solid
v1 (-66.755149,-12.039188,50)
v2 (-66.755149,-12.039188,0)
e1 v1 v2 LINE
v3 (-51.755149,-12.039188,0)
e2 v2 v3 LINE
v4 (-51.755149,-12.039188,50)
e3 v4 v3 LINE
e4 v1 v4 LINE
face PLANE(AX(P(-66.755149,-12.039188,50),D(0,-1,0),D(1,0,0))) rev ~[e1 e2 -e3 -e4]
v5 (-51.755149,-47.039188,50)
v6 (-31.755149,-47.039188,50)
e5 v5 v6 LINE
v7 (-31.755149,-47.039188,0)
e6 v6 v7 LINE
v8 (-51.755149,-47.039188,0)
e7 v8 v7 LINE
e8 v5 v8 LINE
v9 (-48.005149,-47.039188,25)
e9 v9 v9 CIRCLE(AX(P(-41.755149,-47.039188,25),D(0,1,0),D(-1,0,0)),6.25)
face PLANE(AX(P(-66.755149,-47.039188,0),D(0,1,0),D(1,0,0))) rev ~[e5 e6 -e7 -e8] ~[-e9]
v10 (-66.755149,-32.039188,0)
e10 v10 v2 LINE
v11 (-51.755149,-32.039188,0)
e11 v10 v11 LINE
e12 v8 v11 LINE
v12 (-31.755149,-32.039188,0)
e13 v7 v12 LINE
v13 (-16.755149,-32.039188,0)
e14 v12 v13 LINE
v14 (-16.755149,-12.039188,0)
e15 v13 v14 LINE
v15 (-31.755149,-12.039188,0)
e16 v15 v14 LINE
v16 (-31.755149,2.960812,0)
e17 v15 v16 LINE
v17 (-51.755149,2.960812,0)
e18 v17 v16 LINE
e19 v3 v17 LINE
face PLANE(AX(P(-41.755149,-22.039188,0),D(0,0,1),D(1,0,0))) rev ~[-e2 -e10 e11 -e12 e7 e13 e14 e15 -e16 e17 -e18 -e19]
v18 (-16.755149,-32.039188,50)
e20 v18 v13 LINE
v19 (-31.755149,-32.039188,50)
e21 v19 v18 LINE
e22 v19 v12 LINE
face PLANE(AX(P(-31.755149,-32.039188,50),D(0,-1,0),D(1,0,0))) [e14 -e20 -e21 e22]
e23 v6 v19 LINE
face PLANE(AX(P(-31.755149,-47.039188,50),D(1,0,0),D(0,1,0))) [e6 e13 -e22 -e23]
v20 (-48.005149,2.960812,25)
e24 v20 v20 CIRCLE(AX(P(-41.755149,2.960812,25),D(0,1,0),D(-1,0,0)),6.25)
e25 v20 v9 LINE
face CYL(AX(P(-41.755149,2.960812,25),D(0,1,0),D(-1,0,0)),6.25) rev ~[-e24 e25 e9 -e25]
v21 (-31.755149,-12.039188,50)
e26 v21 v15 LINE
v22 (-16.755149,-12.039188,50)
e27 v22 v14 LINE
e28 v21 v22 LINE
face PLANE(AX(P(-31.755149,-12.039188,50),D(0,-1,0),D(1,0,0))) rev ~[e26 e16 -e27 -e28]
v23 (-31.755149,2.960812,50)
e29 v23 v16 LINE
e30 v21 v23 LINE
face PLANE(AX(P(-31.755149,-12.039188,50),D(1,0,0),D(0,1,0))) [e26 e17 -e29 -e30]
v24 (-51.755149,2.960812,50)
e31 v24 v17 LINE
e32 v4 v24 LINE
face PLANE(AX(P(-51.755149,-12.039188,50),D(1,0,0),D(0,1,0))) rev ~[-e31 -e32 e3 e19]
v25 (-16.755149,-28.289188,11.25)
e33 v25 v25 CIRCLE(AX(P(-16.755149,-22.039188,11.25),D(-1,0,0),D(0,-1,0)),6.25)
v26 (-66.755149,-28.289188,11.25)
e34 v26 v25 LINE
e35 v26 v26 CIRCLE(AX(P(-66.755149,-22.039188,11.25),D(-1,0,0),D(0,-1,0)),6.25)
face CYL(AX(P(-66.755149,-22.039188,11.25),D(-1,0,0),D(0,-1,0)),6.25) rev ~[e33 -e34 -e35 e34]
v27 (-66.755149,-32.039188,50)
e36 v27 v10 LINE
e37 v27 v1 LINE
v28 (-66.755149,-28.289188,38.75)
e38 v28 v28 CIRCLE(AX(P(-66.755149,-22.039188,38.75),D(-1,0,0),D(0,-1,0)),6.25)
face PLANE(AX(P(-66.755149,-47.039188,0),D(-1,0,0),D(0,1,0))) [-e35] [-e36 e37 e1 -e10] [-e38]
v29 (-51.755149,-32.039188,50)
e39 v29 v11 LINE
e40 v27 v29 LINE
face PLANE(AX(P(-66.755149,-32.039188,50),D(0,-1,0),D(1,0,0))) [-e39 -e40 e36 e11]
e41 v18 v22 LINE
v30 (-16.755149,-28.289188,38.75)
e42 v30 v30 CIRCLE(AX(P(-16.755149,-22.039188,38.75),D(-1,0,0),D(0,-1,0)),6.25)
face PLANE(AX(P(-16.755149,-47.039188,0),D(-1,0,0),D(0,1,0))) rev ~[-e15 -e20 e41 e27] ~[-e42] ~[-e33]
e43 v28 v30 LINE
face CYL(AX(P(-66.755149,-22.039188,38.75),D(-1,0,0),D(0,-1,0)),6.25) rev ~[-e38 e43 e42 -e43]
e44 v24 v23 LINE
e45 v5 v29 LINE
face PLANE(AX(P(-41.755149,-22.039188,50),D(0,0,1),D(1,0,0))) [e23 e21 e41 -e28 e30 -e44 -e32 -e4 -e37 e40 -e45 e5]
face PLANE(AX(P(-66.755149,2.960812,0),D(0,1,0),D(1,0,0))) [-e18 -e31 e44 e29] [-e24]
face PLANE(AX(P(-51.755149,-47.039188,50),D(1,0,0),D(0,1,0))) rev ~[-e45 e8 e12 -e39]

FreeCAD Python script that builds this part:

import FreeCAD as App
import Part
import Sketcher
Q = App.Units.Quantity

doc = App.newDocument("Part")
body = doc.addObject("PartDesign::Body", "Body")

# Sketch on XY plane
sketch1 = body.newObject("Sketcher::SketchObject", "Sketch")
sketch1.AttachmentSupport = (doc.getObject("XY_Plane"), [""])
sketch1.MapMode = "FlatFace"
sketch1.addGeometry([
    Part.LineSegment(App.Vector(-67, 3, 0), App.Vector(-67, -47, 0)),
    Part.LineSegment(App.Vector(-67, -47, 0), App.Vector(-17, -47, 0)),
    Part.LineSegment(App.Vector(-17, -47, 0), App.Vector(-17, 3, 0)),
    Part.LineSegment(App.Vector(-17, 3, 0), App.Vector(-67, 3, 0)),
], False)
sketch1.addConstraint([
    Sketcher.Constraint("Coincident", 0, 2, 1, 1),
    Sketcher.Constraint("Coincident", 1, 2, 2, 1),
    Sketcher.Constraint("Coincident", 2, 2, 3, 1),
    Sketcher.Constraint("Coincident", 3, 2, 0, 1),
    Sketcher.Constraint("Vertical", 0),
    Sketcher.Constraint("Horizontal", 1),
    Sketcher.Constraint("Vertical", 2),
    Sketcher.Constraint("Horizontal", 3),
    Sketcher.Constraint("Equal", 3, 0),
    Sketcher.Constraint("DistanceX", 1, 1, 1, 2, Q("50 mm")),
    Sketcher.Constraint("DistanceX", 0, 2, -1, 1, Q("66.755149 mm")),
    Sketcher.Constraint("DistanceY", 0, 2, -1, 1, Q("47.039188 mm")),
])
pad1 = body.newObject("PartDesign::Pad", "Pad")
pad1.Profile = sketch1
pad1.Length = 50

# Sketch on YZ plane
sketch2 = body.newObject("Sketcher::SketchObject", "Sketch001")
sketch2.AttachmentSupport = (doc.getObject("YZ_Plane"), [""])
sketch2.MapMode = "FlatFace"
sketch2.AttachmentOffset = App.Placement(App.Vector(0, 0, -66.755149), App.Rotation())
sketch2.addGeometry(Part.Circle(App.Vector(-22, 39, 0), App.Vector(0, 0, 1), 6), False)
sketch2.addConstraint([
    Sketcher.Constraint("Diameter", 0, Q("12.5 mm")),
    Sketcher.Constraint("DistanceY", -1, 1, 0, 3, Q("38.75 mm")),
    Sketcher.Constraint("DistanceX", 0, 3, -1, 1, Q("22.039188 mm")),
])
pocket1 = body.newObject("PartDesign::Pocket", "Pocket")
pocket1.Profile = sketch2
pocket1.Type = "ThroughAll"
pocket1.Reversed = True

# Sketch on YZ plane
sketch3 = body.newObject("Sketcher::SketchObject", "Sketch002")
sketch3.AttachmentSupport = (doc.getObject("YZ_Plane"), [""])
sketch3.MapMode = "FlatFace"
sketch3.AttachmentOffset = App.Placement(App.Vector(0, 0, -66.755149), App.Rotation())
sketch3.addGeometry(Part.Circle(App.Vector(-22, 11, 0), App.Vector(0, 0, 1), 6), False)
sketch3.addConstraint([
    Sketcher.Constraint("Diameter", 0, Q("12.5 mm")),
    Sketcher.Constraint("DistanceY", -1, 1, 0, 3, Q("11.25 mm")),
    Sketcher.Constraint("DistanceX", 0, 3, -1, 1, Q("22.039188 mm")),
])
pocket2 = body.newObject("PartDesign::Pocket", "Pocket001")
pocket2.Profile = sketch3
pocket2.Type = "ThroughAll"
pocket2.Reversed = True

# Sketch on XZ plane
sketch4 = body.newObject("Sketcher::SketchObject", "Sketch003")
sketch4.AttachmentSupport = (doc.getObject("XZ_Plane"), [""])
sketch4.MapMode = "FlatFace"
sketch4.AttachmentOffset = App.Placement(App.Vector(0, 0, -2.960812), App.Rotation())
sketch4.addGeometry(Part.Circle(App.Vector(-42, 25, 0), App.Vector(0, 0, 1), 6), False)
sketch4.addConstraint([
    Sketcher.Constraint("Diameter", 0, Q("12.5 mm")),
    Sketcher.Constraint("DistanceY", -1, 1, 0, 3, Q("25 mm")),
    Sketcher.Constraint("DistanceX", 0, 3, -1, 1, Q("41.755149 mm")),
])
pocket3 = body.newObject("PartDesign::Pocket", "Pocket002")
pocket3.Profile = sketch4
pocket3.Type = "ThroughAll"
pocket3.Reversed = True

# Sketch on XY plane
sketch5 = body.newObject("Sketcher::SketchObject", "Sketch004")
sketch5.AttachmentSupport = (doc.getObject("XY_Plane"), [""])
sketch5.MapMode = "FlatFace"
sketch5.AttachmentOffset = App.Placement(App.Vector(0, 0, 50), App.Rotation())
sketch5.addGeometry([
    Part.LineSegment(App.Vector(-67, -32, 0), App.Vector(-67, -47, 0)),
    Part.LineSegment(App.Vector(-67, -47, 0), App.Vector(-52, -47, 0)),
    Part.LineSegment(App.Vector(-52, -47, 0), App.Vector(-52, -32, 0)),
    Part.LineSegment(App.Vector(-52, -32, 0), App.Vector(-67, -32, 0)),
], False)
sketch5.addConstraint([
    Sketcher.Constraint("Coincident", 0, 2, 1, 1),
    Sketcher.Constraint("Coincident", 1, 2, 2, 1),
    Sketcher.Constraint("Coincident", 2, 2, 3, 1),
    Sketcher.Constraint("Coincident", 3, 2, 0, 1),
    Sketcher.Constraint("Vertical", 0),
    Sketcher.Constraint("Horizontal", 1),
    Sketcher.Constraint("Vertical", 2),
    Sketcher.Constraint("Horizontal", 3),
    Sketcher.Constraint("Equal", 3, 0),
    Sketcher.Constraint("DistanceX", 1, 1, 1, 2, Q("15 mm")),
    Sketcher.Constraint("DistanceX", 0, 2, -1, 1, Q("66.755149 mm")),
    Sketcher.Constraint("DistanceY", 0, 2, -1, 1, Q("47.039188 mm")),
])
pocket4 = body.newObject("PartDesign::Pocket", "Pocket003")
pocket4.Profile = sketch5
pocket4.Type = "ThroughAll"

# Sketch on XY plane
sketch6 = body.newObject("Sketcher::SketchObject", "Sketch005")
sketch6.AttachmentSupport = (doc.getObject("XY_Plane"), [""])
sketch6.MapMode = "FlatFace"
sketch6.AttachmentOffset = App.Placement(App.Vector(0, 0, 50), App.Rotation())
sketch6.addGeometry([
    Part.LineSegment(App.Vector(-67, 3, 0), App.Vector(-67, -12, 0)),
    Part.LineSegment(App.Vector(-67, -12, 0), App.Vector(-52, -12, 0)),
    Part.LineSegment(App.Vector(-52, -12, 0), App.Vector(-52, 3, 0)),
    Part.LineSegment(App.Vector(-52, 3, 0), App.Vector(-67, 3, 0)),
], False)
sketch6.addConstraint([
    Sketcher.Constraint("Coincident", 0, 2, 1, 1),
    Sketcher.Constraint("Coincident", 1, 2, 2, 1),
    Sketcher.Constraint("Coincident", 2, 2, 3, 1),
    Sketcher.Constraint("Coincident", 3, 2, 0, 1),
    Sketcher.Constraint("Vertical", 0),
    Sketcher.Constraint("Horizontal", 1),
    Sketcher.Constraint("Vertical", 2),
    Sketcher.Constraint("Horizontal", 3),
    Sketcher.Constraint("Equal", 3, 0),
    Sketcher.Constraint("DistanceX", 1, 1, 1, 2, Q("15 mm")),
    Sketcher.Constraint("DistanceX", 0, 2, -1, 1, Q("66.755149 mm")),
    Sketcher.Constraint("DistanceY", 0, 2, -1, 1, Q("12.039188 mm")),
])
pocket5 = body.newObject("PartDesign::Pocket", "Pocket004")
pocket5.Profile = sketch6
pocket5.Type = "ThroughAll"

# Sketch on XY plane
sketch7 = body.newObject("Sketcher::SketchObject", "Sketch006")
sketch7.AttachmentSupport = (doc.getObject("XY_Plane"), [""])
sketch7.MapMode = "FlatFace"
sketch7.AttachmentOffset = App.Placement(App.Vector(0, 0, 50), App.Rotation())
sketch7.addGeometry([
    Part.LineSegment(App.Vector(-32, 3, 0), App.Vector(-32, -12, 0)),
    Part.LineSegment(App.Vector(-32, -12, 0), App.Vector(-17, -12, 0)),
    Part.LineSegment(App.Vector(-17, -12, 0), App.Vector(-17, 3, 0)),
    Part.LineSegment(App.Vector(-17, 3, 0), App.Vector(-32, 3, 0)),
], False)
sketch7.addConstraint([
    Sketcher.Constraint("Coincident", 0, 2, 1, 1),
    Sketcher.Constraint("Coincident", 1, 2, 2, 1),
    Sketcher.Constraint("Coincident", 2, 2, 3, 1),
    Sketcher.Constraint("Coincident", 3, 2, 0, 1),
    Sketcher.Constraint("Vertical", 0),
    Sketcher.Constraint("Horizontal", 1),
    Sketcher.Constraint("Vertical", 2),
    Sketcher.Constraint("Horizontal", 3),
    Sketcher.Constraint("Equal", 3, 0),
    Sketcher.Constraint("DistanceX", 1, 1, 1, 2, Q("15 mm")),
    Sketcher.Constraint("DistanceX", 0, 2, -1, 1, Q("31.755149 mm")),
    Sketcher.Constraint("DistanceY", 0, 2, -1, 1, Q("12.039188 mm")),
])
pocket6 = body.newObject("PartDesign::Pocket", "Pocket005")
pocket6.Profile = sketch7
pocket6.Type = "ThroughAll"

# Sketch on XY plane
sketch8 = body.newObject("Sketcher::SketchObject", "Sketch007")
sketch8.AttachmentSupport = (doc.getObject("XY_Plane"), [""])
sketch8.MapMode = "FlatFace"
sketch8.AttachmentOffset = App.Placement(App.Vector(0, 0, 50), App.Rotation())
sketch8.addGeometry([
    Part.LineSegment(App.Vector(-32, -32, 0), App.Vector(-32, -47, 0)),
    Part.LineSegment(App.Vector(-32, -47, 0), App.Vector(-17, -47, 0)),
    Part.LineSegment(App.Vector(-17, -47, 0), App.Vector(-17, -32, 0)),
    Part.LineSegment(App.Vector(-17, -32, 0), App.Vector(-32, -32, 0)),
], False)
sketch8.addConstraint([
    Sketcher.Constraint("Coincident", 0, 2, 1, 1),
    Sketcher.Constraint("Coincident", 1, 2, 2, 1),
    Sketcher.Constraint("Coincident", 2, 2, 3, 1),
    Sketcher.Constraint("Coincident", 3, 2, 0, 1),
    Sketcher.Constraint("Vertical", 0),
    Sketcher.Constraint("Horizontal", 1),
    Sketcher.Constraint("Vertical", 2),
    Sketcher.Constraint("Horizontal", 3),
    Sketcher.Constraint("Equal", 3, 0),
    Sketcher.Constraint("DistanceX", 1, 1, 1, 2, Q("15 mm")),
    Sketcher.Constraint("DistanceX", 0, 2, -1, 1, Q("31.755149 mm")),
    Sketcher.Constraint("DistanceY", 0, 2, -1, 1, Q("47.039188 mm")),
])
pocket7 = body.newObject("PartDesign::Pocket", "Pocket006")
pocket7.Profile = sketch8
pocket7.Type = "ThroughAll"

doc.recompute()
